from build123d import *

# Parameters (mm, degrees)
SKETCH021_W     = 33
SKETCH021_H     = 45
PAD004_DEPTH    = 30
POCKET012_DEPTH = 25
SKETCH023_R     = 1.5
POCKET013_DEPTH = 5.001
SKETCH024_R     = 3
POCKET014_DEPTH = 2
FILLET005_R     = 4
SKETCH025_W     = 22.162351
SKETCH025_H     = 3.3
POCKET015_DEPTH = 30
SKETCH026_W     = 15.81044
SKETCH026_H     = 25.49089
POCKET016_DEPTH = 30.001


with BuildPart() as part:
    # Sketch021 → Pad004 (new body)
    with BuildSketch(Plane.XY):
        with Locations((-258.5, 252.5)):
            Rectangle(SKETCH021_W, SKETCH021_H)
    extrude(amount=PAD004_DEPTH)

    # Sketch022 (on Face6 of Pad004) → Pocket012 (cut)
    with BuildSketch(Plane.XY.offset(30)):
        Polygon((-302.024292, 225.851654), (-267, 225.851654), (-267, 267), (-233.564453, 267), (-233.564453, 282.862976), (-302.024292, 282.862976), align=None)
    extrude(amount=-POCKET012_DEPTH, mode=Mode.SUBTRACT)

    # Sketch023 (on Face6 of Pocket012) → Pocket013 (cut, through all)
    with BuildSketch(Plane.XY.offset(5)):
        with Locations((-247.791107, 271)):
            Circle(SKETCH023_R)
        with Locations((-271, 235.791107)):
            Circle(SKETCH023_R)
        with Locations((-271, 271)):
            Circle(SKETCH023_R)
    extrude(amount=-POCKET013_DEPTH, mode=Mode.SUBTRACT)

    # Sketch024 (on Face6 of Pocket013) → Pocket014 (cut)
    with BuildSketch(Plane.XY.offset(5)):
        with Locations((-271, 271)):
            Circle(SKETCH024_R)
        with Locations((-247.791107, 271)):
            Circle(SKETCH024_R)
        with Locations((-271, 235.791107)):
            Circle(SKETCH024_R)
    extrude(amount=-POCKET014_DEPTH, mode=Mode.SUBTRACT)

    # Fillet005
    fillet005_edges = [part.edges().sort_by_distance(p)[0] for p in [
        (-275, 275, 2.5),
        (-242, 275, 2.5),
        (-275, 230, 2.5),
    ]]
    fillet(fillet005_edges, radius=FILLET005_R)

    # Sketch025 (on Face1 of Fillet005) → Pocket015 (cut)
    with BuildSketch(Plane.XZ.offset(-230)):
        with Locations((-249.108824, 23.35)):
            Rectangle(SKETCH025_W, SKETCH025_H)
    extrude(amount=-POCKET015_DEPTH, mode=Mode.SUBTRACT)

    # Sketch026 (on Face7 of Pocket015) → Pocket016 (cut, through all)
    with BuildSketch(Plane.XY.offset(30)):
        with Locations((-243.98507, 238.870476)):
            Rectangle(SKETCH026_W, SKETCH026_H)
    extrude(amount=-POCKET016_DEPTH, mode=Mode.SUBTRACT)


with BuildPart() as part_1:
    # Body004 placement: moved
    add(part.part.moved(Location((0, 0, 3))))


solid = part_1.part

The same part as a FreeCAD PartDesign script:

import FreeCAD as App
import Part
import Sketcher
Q = App.Units.Quantity


def edges_at(feature, points):
    """Names of the edges that pass closest to the given points."""
    edges = feature.Shape.Edges
    near = lambda p: min(range(len(edges)), key=lambda i: edges[i].distToShape(Part.Vertex(*p))[0])
    return sorted({f"Edge{near(p) + 1}" for p in points})


def add_polygon(sketch, points):
    """Adds a closed chain of lines whose ends are joined by coincident constraints."""
    first, n = sketch.GeometryCount, len(points)
    for a, b in zip(points, points[1:] + points[:1]):
        sketch.addGeometry(Part.LineSegment(App.Vector(*a, 0), App.Vector(*b, 0)), False)
    for i in range(n):
        sketch.addConstraint(Sketcher.Constraint("Coincident", first + i, 2, first + (i + 1) % n, 1))

doc = App.newDocument("Part")
params = doc.addObject("Spreadsheet::Sheet", "Params")
for row, (alias, value) in enumerate([
    ("sketch1_width", "33 mm"),
    ("sketch1_height", "45 mm"),
    ("pad1_length", "30 mm"),
    ("pocket1_length", "25 mm"),
    ("sketch3_diameter", "3 mm"),
    ("sketch4_diameter", "6 mm"),
    ("pocket3_length", "2 mm"),
    ("fillet_radius", "4 mm"),
    ("sketch5_height", "3.3 mm"),
    ("pocket4_length", "30 mm"),
], start=1):
    params.set(f"A{row}", alias)
    params.set(f"B{row}", "=" + value)
    params.setAlias(f"B{row}", alias)

body = doc.addObject("PartDesign::Body", "Body")

sketch1 = doc.addObject("Sketcher::SketchObject", "Sketch")
body.addObject(sketch1)
sketch1.AttachmentSupport = (doc.XY_Plane, [""])
sketch1.MapMode = "FlatFace"
add_polygon(sketch1, [(-275, 275), (-275, 230), (-242, 230), (-242, 275)])
sketch1.addConstraint([
    Sketcher.Constraint("Vertical", 0),
    Sketcher.Constraint("Horizontal", 1),
    Sketcher.Constraint("Vertical", 2),
    Sketcher.Constraint("Horizontal", 3),
    Sketcher.Constraint("DistanceX", 1, 1, 1, 2, Q("33 mm")),
    Sketcher.Constraint("DistanceY", 0, 2, 0, 1, Q("45 mm")),
    Sketcher.Constraint("DistanceX", 0, 2, -1, 1, Q("275 mm")),
    Sketcher.Constraint("DistanceY", -1, 1, 0, 2, Q("230 mm")),
])
sketch1.setExpression("Constraints[8]", "Params.sketch1_width")
sketch1.setExpression("Constraints[9]", "Params.sketch1_height")
pad1 = doc.addObject("PartDesign::Pad", "Pad")
body.addObject(pad1)
pad1.Profile = sketch1
pad1.setExpression("Length", "Params.pad1_length")

sketch2 = doc.addObject("Sketcher::SketchObject", "Sketch001")
body.addObject(sketch2)
sketch2.AttachmentSupport = (doc.XY_Plane, [""])
sketch2.MapMode = "FlatFace"
sketch2.AttachmentOffset = App.Placement(App.Vector(0, 0, 30), App.Rotation())
add_polygon(sketch2, [(-302, 226), (-267, 226), (-267, 267), (-234, 267), (-234, 283), (-302, 283)])
sketch2.addConstraint([
    Sketcher.Constraint("Horizontal", 0),
    Sketcher.Constraint("Vertical", 1),
    Sketcher.Constraint("Horizontal", 2),
    Sketcher.Constraint("Vertical", 3),
    Sketcher.Constraint("Horizontal", 4),
    Sketcher.Constraint("Vertical", 5),
    Sketcher.Constraint("DistanceX", 0, 2, -1, 1, Q("267 mm")),
    Sketcher.Constraint("DistanceY", -1, 1, 1, 2, Q("267 mm")),
    Sketcher.Constraint("DistanceX", 4, 2, 4, 1, Q("68.459839 mm")),
    Sketcher.Constraint("DistanceX", 0, 1, 0, 2, Q("35.024292 mm")),
    Sketcher.Constraint("DistanceY", 1, 1, 1, 2, Q("41.148346 mm")),
    Sketcher.Constraint("DistanceY", 3, 1, 3, 2, Q("15.862976 mm")),
])
pocket1 = doc.addObject("PartDesign::Pocket", "Pocket")
body.addObject(pocket1)
pocket1.Profile = sketch2
pocket1.setExpression("Length", "Params.pocket1_length")

sketch3 = doc.addObject("Sketcher::SketchObject", "Sketch002")
body.addObject(sketch3)
sketch3.AttachmentSupport = (doc.XY_Plane, [""])
sketch3.MapMode = "FlatFace"
sketch3.AttachmentOffset = App.Placement(App.Vector(0, 0, 5), App.Rotation())
sketch3.addGeometry([
    Part.Circle(App.Vector(-247.8, 271, 0), App.Vector(0, 0, 1), 1.5),
    Part.Circle(App.Vector(-271, 235.8, 0), App.Vector(0, 0, 1), 1.5),
    Part.Circle(App.Vector(-271, 271, 0), App.Vector(0, 0, 1), 1.5),
], False)
sketch3.addConstraint([
    Sketcher.Constraint("Equal", 0, 1),
    Sketcher.Constraint("Equal", 1, 2),
    Sketcher.Constraint("Horizontal", 0, 3, 2, 3),
    Sketcher.Constraint("Vertical", 1, 3, 2, 3),
    Sketcher.Constraint("Diameter", 0, Q("3 mm")),
    Sketcher.Constraint("DistanceY", -1, 1, 0, 3, Q("271 mm")),
    Sketcher.Constraint("DistanceX", 1, 3, -1, 1, Q("271 mm")),
    Sketcher.Constraint("DistanceX", 0, 3, -1, 1, Q("247.791107 mm")),
    Sketcher.Constraint("DistanceY", -1, 1, 1, 3, Q("235.791107 mm")),
])
sketch3.setExpression("Constraints[4]", "Params.sketch3_diameter")
pocket2 = doc.addObject("PartDesign::Pocket", "Pocket001")
body.addObject(pocket2)
pocket2.Profile = sketch3
pocket2.Type = "ThroughAll"

sketch4 = doc.addObject("Sketcher::SketchObject", "Sketch003")
body.addObject(sketch4)
sketch4.AttachmentSupport = (doc.XY_Plane, [""])
sketch4.MapMode = "FlatFace"
sketch4.AttachmentOffset = App.Placement(App.Vector(0, 0, 5), App.Rotation())
sketch4.addGeometry([
    Part.Circle(App.Vector(-271, 271, 0), App.Vector(0, 0, 1), 3),
    Part.Circle(App.Vector(-247.8, 271, 0), App.Vector(0, 0, 1), 3),
    Part.Circle(App.Vector(-271, 235.8, 0), App.Vector(0, 0, 1), 3),
], False)
sketch4.addConstraint([
    Sketcher.Constraint("Equal", 0, 1),
    Sketcher.Constraint("Equal", 1, 2),
    Sketcher.Constraint("Horizontal", 0, 3, 1, 3),
    Sketcher.Constraint("Vertical", 0, 3, 2, 3),
    Sketcher.Constraint("Diameter", 0, Q("6 mm")),
    Sketcher.Constraint("DistanceX", 0, 3, -1, 1, Q("271 mm")),
    Sketcher.Constraint("DistanceY", -1, 1, 0, 3, Q("271 mm")),
    Sketcher.Constraint("DistanceX", 1, 3, -1, 1, Q("247.791107 mm")),
    Sketcher.Constraint("DistanceY", -1, 1, 2, 3, Q("235.791107 mm")),
])
sketch4.setExpression("Constraints[4]", "Params.sketch4_diameter")
pocket3 = doc.addObject("PartDesign::Pocket", "Pocket002")
body.addObject(pocket3)
pocket3.Profile = sketch4
pocket3.setExpression("Length", "Params.pocket3_length")
doc.recompute()

fillet = doc.addObject("PartDesign::Fillet", "Fillet")
body.addObject(fillet)
fillet.Base = (pocket3, edges_at(pocket3, [(-275, 275, 2.5), (-242, 275, 2.5), (-275, 230, 2.5)]))
fillet.setExpression("Radius", "Params.fillet_radius")

sketch5 = doc.addObject("Sketcher::SketchObject", "Sketch004")
body.addObject(sketch5)
sketch5.AttachmentSupport = (doc.XZ_Plane, [""])
sketch5.MapMode = "FlatFace"
sketch5.AttachmentOffset = App.Placement(App.Vector(0, 0, -230), App.Rotation())
add_polygon(sketch5, [(-260.2, 25), (-260.2, 21.7), (-238, 21.7), (-238, 25)])
sketch5.addConstraint([
    Sketcher.Constraint("Vertical", 0),
    Sketcher.Constraint("Horizontal", 1),
    Sketcher.Constraint("Vertical", 2),
    Sketcher.Constraint("Horizontal", 3),
    Sketcher.Constraint("DistanceY", 0, 2, 0, 1, Q("3.3 mm")),
    Sketcher.Constraint("DistanceY", -1, 1, 2, 2, Q("25 mm")),
    Sketcher.Constraint("DistanceX", 0, 2, -1, 1, Q("260.189999 mm")),
    Sketcher.Constraint("DistanceX", 1, 1, 1, 2, Q("22.162351 mm")),
])
sketch5.setExpression("Constraints[8]", "Params.sketch5_height")
pocket4 = doc.addObject("PartDesign::Pocket", "Pocket003")
body.addObject(pocket4)
pocket4.Profile = sketch5
pocket4.setExpression("Length", "Params.pocket4_length")

sketch6 = doc.addObject("Sketcher::SketchObject", "Sketch005")
body.addObject(sketch6)
sketch6.AttachmentSupport = (doc.XY_Plane, [""])
sketch6.MapMode = "FlatFace"
sketch6.AttachmentOffset = App.Placement(App.Vector(0, 0, 30), App.Rotation())
add_polygon(sketch6, [(-252, 252), (-252, 226), (-236, 226), (-236, 252)])
sketch6.addConstraint([
    Sketcher.Constraint("Vertical", 0),
    Sketcher.Constraint("Horizontal", 1),
    Sketcher.Constraint("Vertical", 2),
    Sketcher.Constraint("Horizontal", 3),
    Sketcher.Constraint("DistanceX", 1, 1, 1, 2, Q("15.81044 mm")),
    Sketcher.Constraint("DistanceY", 0, 2, 0, 1, Q("25.49089 mm")),
    Sketcher.Constraint("DistanceX", 0, 2, -1, 1, Q("251.89029 mm")),
    Sketcher.Constraint("DistanceY", -1, 1, 0, 2, Q("226.125031 mm")),
])
pocket5 = doc.addObject("PartDesign::Pocket", "Pocket004")
body.addObject(pocket5)
pocket5.Profile = sketch6
pocket5.Type = "ThroughAll"
body2 = doc.addObject("PartDesign::Body", "Body001")
doc.recompute()

body.Placement = App.Placement(App.Vector(0, 0, 3), App.Rotation(App.Vector(0, 0, 1), 0))
boolean = doc.addObject("PartDesign::Boolean", "Boolean")
body2.addObject(boolean)
boolean.Type = "Fuse"
boolean.addObjects([body])

doc.recompute()
